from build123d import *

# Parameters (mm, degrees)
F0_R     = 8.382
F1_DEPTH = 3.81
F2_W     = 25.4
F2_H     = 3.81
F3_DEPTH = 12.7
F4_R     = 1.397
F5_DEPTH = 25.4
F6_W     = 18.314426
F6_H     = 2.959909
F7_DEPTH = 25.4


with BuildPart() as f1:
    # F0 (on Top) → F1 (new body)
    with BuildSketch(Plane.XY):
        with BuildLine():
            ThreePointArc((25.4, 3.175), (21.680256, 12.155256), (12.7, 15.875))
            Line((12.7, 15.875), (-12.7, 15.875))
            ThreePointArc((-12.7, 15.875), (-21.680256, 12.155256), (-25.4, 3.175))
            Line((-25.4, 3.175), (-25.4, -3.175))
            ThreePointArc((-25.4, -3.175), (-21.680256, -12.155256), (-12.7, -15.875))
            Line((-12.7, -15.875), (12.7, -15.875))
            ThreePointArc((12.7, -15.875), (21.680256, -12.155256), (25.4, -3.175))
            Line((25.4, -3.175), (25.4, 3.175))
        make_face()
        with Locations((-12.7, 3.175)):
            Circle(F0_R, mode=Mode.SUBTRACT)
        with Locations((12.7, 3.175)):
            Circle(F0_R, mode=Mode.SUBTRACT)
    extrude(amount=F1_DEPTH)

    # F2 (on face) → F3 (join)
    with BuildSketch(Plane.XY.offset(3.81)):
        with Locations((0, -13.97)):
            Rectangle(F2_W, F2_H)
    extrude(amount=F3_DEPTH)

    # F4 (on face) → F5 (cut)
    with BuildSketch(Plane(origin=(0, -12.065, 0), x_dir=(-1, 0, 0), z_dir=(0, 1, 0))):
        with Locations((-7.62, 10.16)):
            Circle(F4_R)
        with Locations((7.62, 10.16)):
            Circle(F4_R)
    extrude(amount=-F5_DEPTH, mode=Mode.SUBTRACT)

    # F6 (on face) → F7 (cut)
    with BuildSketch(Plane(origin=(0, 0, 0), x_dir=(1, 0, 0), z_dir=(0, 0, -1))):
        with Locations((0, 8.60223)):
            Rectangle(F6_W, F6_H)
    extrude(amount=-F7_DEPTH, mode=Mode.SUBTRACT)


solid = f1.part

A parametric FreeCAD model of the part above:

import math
import FreeCAD as App
import Part
import Sketcher

V = App.Vector
Q = App.Units.Quantity


def add_polygon(sketch, points):
    """Adds a closed chain of lines whose ends are joined by coincident constraints."""
    first, n = sketch.GeometryCount, len(points)
    for a, b in zip(points, points[1:] + points[:1]):
        sketch.addGeometry(Part.LineSegment(App.Vector(*a, 0), App.Vector(*b, 0)), False)
    for i in range(n):
        sketch.addConstraint(Sketcher.Constraint("Coincident", first + i, 2, first + (i + 1) % n, 1))

doc = App.newDocument("Part")
body = doc.addObject("PartDesign::Body", "Body")

# Sketch on XY plane
sketch1 = body.newObject("Sketcher::SketchObject", "Sketch")
sketch1.AttachmentSupport = (doc.getObject("XY_Plane"), [""])
sketch1.MapMode = "FlatFace"
sketch1.addGeometry([
    Part.ArcOfCircle(Part.Circle(V(13, 3, 0), V(0, 0, 1), 13), math.radians(0), math.radians(90)),  # 0
    Part.LineSegment(V(13, 16, 0), V(-13, 16, 0)),  # 1
    Part.ArcOfCircle(Part.Circle(V(-13, 3, 0), V(0, 0, 1), 13), math.radians(90), math.radians(180)),  # 2
    Part.LineSegment(V(-25, 3, 0), V(-25, -3, 0)),  # 3
    Part.ArcOfCircle(Part.Circle(V(-13, -3, 0), V(0, 0, 1), 13), math.radians(-180), math.radians(-90)),  # 4
    Part.LineSegment(V(-13, -16, 0), V(13, -16, 0)),  # 5
    Part.ArcOfCircle(Part.Circle(V(13, -3, 0), V(0, 0, 1), 13), math.radians(-90), math.radians(0)),  # 6
    Part.LineSegment(V(25, -3, 0), V(25, 3, 0)),  # 7
    Part.Circle(V(-13, 3, 0), V(0, 0, 1), 8),  # 8
    Part.Circle(V(13, 3, 0), V(0, 0, 1), 8),  # 9
], False)
sketch1.addConstraint([
    Sketcher.Constraint("Tangent", 0, 2, 1, 1),
    Sketcher.Constraint("Tangent", 1, 2, 2, 1),
    Sketcher.Constraint("Tangent", 2, 2, 3, 1),
    Sketcher.Constraint("Tangent", 3, 2, 4, 1),
    Sketcher.Constraint("Tangent", 4, 2, 5, 1),
    Sketcher.Constraint("Tangent", 5, 2, 6, 1),
    Sketcher.Constraint("Tangent", 6, 2, 7, 1),
    Sketcher.Constraint("Tangent", 7, 2, 0, 1),
    Sketcher.Constraint("Horizontal", 1),
    Sketcher.Constraint("Vertical", 3),
    Sketcher.Constraint("Horizontal", 5),
    Sketcher.Constraint("Vertical", 7),
    Sketcher.Constraint("Coincident", 8, 3, 2, 3),
    Sketcher.Constraint("Coincident", 9, 3, 0, 3),
    Sketcher.Constraint("Equal", 0, 2),
    Sketcher.Constraint("Equal", 2, 4),
    Sketcher.Constraint("Equal", 4, 6),
    Sketcher.Constraint("Equal", 8, 9),
    Sketcher.Constraint("Symmetric", 0, 3, 4, 3, -1, 1),
    Sketcher.Constraint("Radius", 0, Q("0.5 in")),
    Sketcher.Constraint("Diameter", 8, Q("0.66 in")),
    Sketcher.Constraint("DistanceX", 1, 2, 1, 1, Q("1 in")),
    Sketcher.Constraint("DistanceY", 3, 2, 3, 1, Q("0.25 in")),
])
pad1 = body.newObject("PartDesign::Pad", "Pad")
pad1.Profile = sketch1
pad1.Length = Q("0.15 in")

# Sketch on XY plane
sketch2 = body.newObject("Sketcher::SketchObject", "Sketch001")
sketch2.AttachmentSupport = (doc.getObject("XY_Plane"), [""])
sketch2.MapMode = "FlatFace"
sketch2.AttachmentOffset = App.Placement(V(0, 0, 0.15 * 25.4), App.Rotation())
add_polygon(sketch2, [(-12.7, -12.1), (-12.7, -15.9), (12.7, -15.9), (12.7, -12.1)])  # lines 0-3
sketch2.addConstraint([
    Sketcher.Constraint("Vertical", 0),
    Sketcher.Constraint("Horizontal", 1),
    Sketcher.Constraint("Vertical", 2),
    Sketcher.Constraint("Horizontal", 3),
    Sketcher.Constraint("DistanceX", 1, 1, 1, 2, Q("1 in")),
    Sketcher.Constraint("DistanceY", 0, 2, 0, 1, Q("0.15 in")),
    Sketcher.Constraint("DistanceX", 0, 2, -1, 1, Q("0.5 in")),
    Sketcher.Constraint("DistanceY", 0, 2, -1, 1, Q("0.625 in")),
])
pad2 = body.newObject("PartDesign::Pad", "Pad001")
pad2.Profile = sketch2
pad2.Length = Q("0.5 in")

# Sketch on XZ plane
sketch3 = body.newObject("Sketcher::SketchObject", "Sketch002")
sketch3.AttachmentSupport = (doc.getObject("XZ_Plane"), [""])
sketch3.MapMode = "FlatFace"
sketch3.AttachmentOffset = App.Placement(V(0, 0, 0.475 * 25.4), App.Rotation())
sketch3.addGeometry([
    Part.Circle(V(7.6, 10.2, 0), V(0, 0, 1), 1.4),
    Part.Circle(V(-7.6, 10.2, 0), V(0, 0, 1), 1.4),
], False)
sketch3.addConstraint([
    Sketcher.Constraint("Equal", 0, 1),
    Sketcher.Constraint("Symmetric", 0, 3, 1, 3, -2),
    Sketcher.Constraint("Diameter", 0, Q("0.11 in")),
    Sketcher.Constraint("DistanceX", -1, 1, 0, 3, Q("0.3 in")),
    Sketcher.Constraint("DistanceY", -1, 1, 0, 3, Q("0.4 in")),
])
pocket1 = body.newObject("PartDesign::Pocket", "Pocket")
pocket1.Profile = sketch3
pocket1.Length = Q("1 in")
pocket1.Reversed = True

# Sketch on XY plane
sketch4 = body.newObject("Sketcher::SketchObject", "Sketch003")
sketch4.AttachmentSupport = (doc.getObject("XY_Plane"), [""])
sketch4.MapMode = "FlatFace"
add_polygon(sketch4, [(-9.2, -10.1), (-9.2, -7.1), (9.2, -7.1), (9.2, -10.1)])  # lines 0-3
sketch4.addConstraint([
    Sketcher.Constraint("Vertical", 0),
    Sketcher.Constraint("Horizontal", 1),
    Sketcher.Constraint("Vertical", 2),
    Sketcher.Constraint("Horizontal", 3),
    Sketcher.Constraint("DistanceY", 0, 1, 0, 2, 2.959909),
    Sketcher.Constraint("DistanceX", 1, 1, 1, 2, 18.314426),
    Sketcher.Constraint("DistanceX", 0, 2, -1, 1, 9.157213),
    Sketcher.Constraint("DistanceY", 0, 2, -1, 1, 7.122275),
])
pocket2 = body.newObject("PartDesign::Pocket", "Pocket001")
pocket2.Profile = sketch4
pocket2.Length = Q("1 in")
pocket2.Reversed = True

doc.recompute()
